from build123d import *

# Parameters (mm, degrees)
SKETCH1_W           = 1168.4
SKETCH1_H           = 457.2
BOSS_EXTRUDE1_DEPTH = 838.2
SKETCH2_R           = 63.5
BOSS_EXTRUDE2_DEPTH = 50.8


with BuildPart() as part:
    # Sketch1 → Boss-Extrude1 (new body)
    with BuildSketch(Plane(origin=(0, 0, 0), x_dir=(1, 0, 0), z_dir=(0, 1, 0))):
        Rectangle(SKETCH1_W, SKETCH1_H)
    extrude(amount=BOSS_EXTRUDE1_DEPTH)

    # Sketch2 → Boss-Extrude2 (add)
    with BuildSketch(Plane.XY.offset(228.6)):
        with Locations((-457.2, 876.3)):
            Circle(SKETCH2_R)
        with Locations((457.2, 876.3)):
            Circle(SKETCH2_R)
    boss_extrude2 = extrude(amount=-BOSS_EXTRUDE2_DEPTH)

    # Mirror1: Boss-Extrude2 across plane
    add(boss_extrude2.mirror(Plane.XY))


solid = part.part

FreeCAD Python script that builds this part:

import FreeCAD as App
import Part
import Sketcher
Q = App.Units.Quantity


def add_polygon(sketch, points):
    """Adds a closed chain of lines whose ends are joined by coincident constraints."""
    first, n = sketch.GeometryCount, len(points)
    for a, b in zip(points, points[1:] + points[:1]):
        sketch.addGeometry(Part.LineSegment(App.Vector(*a, 0), App.Vector(*b, 0)), False)
    for i in range(n):
        sketch.addConstraint(Sketcher.Constraint("Coincident", first + i, 2, first + (i + 1) % n, 1))

doc = App.newDocument("Part")
params = doc.addObject("Spreadsheet::Sheet", "Params")
for row, (alias, value) in enumerate([
    ("sketch1_width", "46 in"),
    ("sketch1_height", "18 in"),
    ("pad1_length", "33 in"),
    ("sketch2_diameter", "5 in"),
    ("pad2_length", "2 in"),
], start=1):
    params.set(f"A{row}", alias)
    params.set(f"B{row}", "=" + value)
    params.setAlias(f"B{row}", alias)

body = doc.addObject("PartDesign::Body", "Body")

sketch1 = doc.addObject("Sketcher::SketchObject", "Sketch")
body.addObject(sketch1)
sketch1.AttachmentSupport = (doc.XZ_Plane, [""])
sketch1.MapMode = "FlatFace"
add_polygon(sketch1, [(-584, -229), (-584, 229), (584, 229), (584, -229)])
sketch1.addConstraint(Sketcher.Constraint("Vertical", 0))
sketch1.addConstraint(Sketcher.Constraint("Horizontal", 1))
sketch1.addConstraint(Sketcher.Constraint("Vertical", 2))
sketch1.addConstraint(Sketcher.Constraint("Horizontal", 3))
sketch1.addConstraint(Sketcher.Constraint("Symmetric", 0, 2, 2, 2, -1, 1))
sketch1.addConstraint(Sketcher.Constraint("DistanceX", 1, 1, 1, 2, Q("46 in")))
sketch1.addConstraint(Sketcher.Constraint("DistanceY", 0, 1, 0, 2, Q("18 in")))
sketch1.setExpression("Constraints[9]", "Params.sketch1_width")
sketch1.setExpression("Constraints[10]", "Params.sketch1_height")
pad1 = doc.addObject("PartDesign::Pad", "Pad")
body.addObject(pad1)
pad1.Profile = sketch1
pad1.setExpression("Length", "Params.pad1_length")
pad1.Reversed = True

sketch2 = doc.addObject("Sketcher::SketchObject", "Sketch001")
body.addObject(sketch2)
sketch2.AttachmentSupport = (doc.XY_Plane, [""])
sketch2.MapMode = "FlatFace"
sketch2.AttachmentOffset = App.Placement(App.Vector(0, 0, 9 * 25.4), App.Rotation())
sketch2.addGeometry(Part.Circle(App.Vector(-457, 876, 0), App.Vector(0, 0, 1), 64), False)
sketch2.addGeometry(Part.Circle(App.Vector(457, 876, 0), App.Vector(0, 0, 1), 64), False)
sketch2.addConstraint(Sketcher.Constraint("Equal", 0, 1))
sketch2.addConstraint(Sketcher.Constraint("Symmetric", 0, 3, 1, 3, -2))
sketch2.addConstraint(Sketcher.Constraint("Diameter", 0, Q("5 in")))
sketch2.addConstraint(Sketcher.Constraint("DistanceX", 0, 3, -1, 1, Q("18 in")))
sketch2.addConstraint(Sketcher.Constraint("DistanceY", -1, 1, 0, 3, Q("34.5 in")))
sketch2.setExpression("Constraints[2]", "Params.sketch2_diameter")
pad2 = doc.addObject("PartDesign::Pad", "Pad001")
body.addObject(pad2)
pad2.Profile = sketch2
pad2.setExpression("Length", "Params.pad2_length")
pad2.Reversed = True
doc.recompute()

mirrored = doc.addObject("PartDesign::Mirrored", "Mirrored")
body.addObject(mirrored)
mirrored.Originals = [pad2]
mirrored.MirrorPlane = (doc.XY_Plane, [""])
body.Tip = mirrored

doc.recompute()
